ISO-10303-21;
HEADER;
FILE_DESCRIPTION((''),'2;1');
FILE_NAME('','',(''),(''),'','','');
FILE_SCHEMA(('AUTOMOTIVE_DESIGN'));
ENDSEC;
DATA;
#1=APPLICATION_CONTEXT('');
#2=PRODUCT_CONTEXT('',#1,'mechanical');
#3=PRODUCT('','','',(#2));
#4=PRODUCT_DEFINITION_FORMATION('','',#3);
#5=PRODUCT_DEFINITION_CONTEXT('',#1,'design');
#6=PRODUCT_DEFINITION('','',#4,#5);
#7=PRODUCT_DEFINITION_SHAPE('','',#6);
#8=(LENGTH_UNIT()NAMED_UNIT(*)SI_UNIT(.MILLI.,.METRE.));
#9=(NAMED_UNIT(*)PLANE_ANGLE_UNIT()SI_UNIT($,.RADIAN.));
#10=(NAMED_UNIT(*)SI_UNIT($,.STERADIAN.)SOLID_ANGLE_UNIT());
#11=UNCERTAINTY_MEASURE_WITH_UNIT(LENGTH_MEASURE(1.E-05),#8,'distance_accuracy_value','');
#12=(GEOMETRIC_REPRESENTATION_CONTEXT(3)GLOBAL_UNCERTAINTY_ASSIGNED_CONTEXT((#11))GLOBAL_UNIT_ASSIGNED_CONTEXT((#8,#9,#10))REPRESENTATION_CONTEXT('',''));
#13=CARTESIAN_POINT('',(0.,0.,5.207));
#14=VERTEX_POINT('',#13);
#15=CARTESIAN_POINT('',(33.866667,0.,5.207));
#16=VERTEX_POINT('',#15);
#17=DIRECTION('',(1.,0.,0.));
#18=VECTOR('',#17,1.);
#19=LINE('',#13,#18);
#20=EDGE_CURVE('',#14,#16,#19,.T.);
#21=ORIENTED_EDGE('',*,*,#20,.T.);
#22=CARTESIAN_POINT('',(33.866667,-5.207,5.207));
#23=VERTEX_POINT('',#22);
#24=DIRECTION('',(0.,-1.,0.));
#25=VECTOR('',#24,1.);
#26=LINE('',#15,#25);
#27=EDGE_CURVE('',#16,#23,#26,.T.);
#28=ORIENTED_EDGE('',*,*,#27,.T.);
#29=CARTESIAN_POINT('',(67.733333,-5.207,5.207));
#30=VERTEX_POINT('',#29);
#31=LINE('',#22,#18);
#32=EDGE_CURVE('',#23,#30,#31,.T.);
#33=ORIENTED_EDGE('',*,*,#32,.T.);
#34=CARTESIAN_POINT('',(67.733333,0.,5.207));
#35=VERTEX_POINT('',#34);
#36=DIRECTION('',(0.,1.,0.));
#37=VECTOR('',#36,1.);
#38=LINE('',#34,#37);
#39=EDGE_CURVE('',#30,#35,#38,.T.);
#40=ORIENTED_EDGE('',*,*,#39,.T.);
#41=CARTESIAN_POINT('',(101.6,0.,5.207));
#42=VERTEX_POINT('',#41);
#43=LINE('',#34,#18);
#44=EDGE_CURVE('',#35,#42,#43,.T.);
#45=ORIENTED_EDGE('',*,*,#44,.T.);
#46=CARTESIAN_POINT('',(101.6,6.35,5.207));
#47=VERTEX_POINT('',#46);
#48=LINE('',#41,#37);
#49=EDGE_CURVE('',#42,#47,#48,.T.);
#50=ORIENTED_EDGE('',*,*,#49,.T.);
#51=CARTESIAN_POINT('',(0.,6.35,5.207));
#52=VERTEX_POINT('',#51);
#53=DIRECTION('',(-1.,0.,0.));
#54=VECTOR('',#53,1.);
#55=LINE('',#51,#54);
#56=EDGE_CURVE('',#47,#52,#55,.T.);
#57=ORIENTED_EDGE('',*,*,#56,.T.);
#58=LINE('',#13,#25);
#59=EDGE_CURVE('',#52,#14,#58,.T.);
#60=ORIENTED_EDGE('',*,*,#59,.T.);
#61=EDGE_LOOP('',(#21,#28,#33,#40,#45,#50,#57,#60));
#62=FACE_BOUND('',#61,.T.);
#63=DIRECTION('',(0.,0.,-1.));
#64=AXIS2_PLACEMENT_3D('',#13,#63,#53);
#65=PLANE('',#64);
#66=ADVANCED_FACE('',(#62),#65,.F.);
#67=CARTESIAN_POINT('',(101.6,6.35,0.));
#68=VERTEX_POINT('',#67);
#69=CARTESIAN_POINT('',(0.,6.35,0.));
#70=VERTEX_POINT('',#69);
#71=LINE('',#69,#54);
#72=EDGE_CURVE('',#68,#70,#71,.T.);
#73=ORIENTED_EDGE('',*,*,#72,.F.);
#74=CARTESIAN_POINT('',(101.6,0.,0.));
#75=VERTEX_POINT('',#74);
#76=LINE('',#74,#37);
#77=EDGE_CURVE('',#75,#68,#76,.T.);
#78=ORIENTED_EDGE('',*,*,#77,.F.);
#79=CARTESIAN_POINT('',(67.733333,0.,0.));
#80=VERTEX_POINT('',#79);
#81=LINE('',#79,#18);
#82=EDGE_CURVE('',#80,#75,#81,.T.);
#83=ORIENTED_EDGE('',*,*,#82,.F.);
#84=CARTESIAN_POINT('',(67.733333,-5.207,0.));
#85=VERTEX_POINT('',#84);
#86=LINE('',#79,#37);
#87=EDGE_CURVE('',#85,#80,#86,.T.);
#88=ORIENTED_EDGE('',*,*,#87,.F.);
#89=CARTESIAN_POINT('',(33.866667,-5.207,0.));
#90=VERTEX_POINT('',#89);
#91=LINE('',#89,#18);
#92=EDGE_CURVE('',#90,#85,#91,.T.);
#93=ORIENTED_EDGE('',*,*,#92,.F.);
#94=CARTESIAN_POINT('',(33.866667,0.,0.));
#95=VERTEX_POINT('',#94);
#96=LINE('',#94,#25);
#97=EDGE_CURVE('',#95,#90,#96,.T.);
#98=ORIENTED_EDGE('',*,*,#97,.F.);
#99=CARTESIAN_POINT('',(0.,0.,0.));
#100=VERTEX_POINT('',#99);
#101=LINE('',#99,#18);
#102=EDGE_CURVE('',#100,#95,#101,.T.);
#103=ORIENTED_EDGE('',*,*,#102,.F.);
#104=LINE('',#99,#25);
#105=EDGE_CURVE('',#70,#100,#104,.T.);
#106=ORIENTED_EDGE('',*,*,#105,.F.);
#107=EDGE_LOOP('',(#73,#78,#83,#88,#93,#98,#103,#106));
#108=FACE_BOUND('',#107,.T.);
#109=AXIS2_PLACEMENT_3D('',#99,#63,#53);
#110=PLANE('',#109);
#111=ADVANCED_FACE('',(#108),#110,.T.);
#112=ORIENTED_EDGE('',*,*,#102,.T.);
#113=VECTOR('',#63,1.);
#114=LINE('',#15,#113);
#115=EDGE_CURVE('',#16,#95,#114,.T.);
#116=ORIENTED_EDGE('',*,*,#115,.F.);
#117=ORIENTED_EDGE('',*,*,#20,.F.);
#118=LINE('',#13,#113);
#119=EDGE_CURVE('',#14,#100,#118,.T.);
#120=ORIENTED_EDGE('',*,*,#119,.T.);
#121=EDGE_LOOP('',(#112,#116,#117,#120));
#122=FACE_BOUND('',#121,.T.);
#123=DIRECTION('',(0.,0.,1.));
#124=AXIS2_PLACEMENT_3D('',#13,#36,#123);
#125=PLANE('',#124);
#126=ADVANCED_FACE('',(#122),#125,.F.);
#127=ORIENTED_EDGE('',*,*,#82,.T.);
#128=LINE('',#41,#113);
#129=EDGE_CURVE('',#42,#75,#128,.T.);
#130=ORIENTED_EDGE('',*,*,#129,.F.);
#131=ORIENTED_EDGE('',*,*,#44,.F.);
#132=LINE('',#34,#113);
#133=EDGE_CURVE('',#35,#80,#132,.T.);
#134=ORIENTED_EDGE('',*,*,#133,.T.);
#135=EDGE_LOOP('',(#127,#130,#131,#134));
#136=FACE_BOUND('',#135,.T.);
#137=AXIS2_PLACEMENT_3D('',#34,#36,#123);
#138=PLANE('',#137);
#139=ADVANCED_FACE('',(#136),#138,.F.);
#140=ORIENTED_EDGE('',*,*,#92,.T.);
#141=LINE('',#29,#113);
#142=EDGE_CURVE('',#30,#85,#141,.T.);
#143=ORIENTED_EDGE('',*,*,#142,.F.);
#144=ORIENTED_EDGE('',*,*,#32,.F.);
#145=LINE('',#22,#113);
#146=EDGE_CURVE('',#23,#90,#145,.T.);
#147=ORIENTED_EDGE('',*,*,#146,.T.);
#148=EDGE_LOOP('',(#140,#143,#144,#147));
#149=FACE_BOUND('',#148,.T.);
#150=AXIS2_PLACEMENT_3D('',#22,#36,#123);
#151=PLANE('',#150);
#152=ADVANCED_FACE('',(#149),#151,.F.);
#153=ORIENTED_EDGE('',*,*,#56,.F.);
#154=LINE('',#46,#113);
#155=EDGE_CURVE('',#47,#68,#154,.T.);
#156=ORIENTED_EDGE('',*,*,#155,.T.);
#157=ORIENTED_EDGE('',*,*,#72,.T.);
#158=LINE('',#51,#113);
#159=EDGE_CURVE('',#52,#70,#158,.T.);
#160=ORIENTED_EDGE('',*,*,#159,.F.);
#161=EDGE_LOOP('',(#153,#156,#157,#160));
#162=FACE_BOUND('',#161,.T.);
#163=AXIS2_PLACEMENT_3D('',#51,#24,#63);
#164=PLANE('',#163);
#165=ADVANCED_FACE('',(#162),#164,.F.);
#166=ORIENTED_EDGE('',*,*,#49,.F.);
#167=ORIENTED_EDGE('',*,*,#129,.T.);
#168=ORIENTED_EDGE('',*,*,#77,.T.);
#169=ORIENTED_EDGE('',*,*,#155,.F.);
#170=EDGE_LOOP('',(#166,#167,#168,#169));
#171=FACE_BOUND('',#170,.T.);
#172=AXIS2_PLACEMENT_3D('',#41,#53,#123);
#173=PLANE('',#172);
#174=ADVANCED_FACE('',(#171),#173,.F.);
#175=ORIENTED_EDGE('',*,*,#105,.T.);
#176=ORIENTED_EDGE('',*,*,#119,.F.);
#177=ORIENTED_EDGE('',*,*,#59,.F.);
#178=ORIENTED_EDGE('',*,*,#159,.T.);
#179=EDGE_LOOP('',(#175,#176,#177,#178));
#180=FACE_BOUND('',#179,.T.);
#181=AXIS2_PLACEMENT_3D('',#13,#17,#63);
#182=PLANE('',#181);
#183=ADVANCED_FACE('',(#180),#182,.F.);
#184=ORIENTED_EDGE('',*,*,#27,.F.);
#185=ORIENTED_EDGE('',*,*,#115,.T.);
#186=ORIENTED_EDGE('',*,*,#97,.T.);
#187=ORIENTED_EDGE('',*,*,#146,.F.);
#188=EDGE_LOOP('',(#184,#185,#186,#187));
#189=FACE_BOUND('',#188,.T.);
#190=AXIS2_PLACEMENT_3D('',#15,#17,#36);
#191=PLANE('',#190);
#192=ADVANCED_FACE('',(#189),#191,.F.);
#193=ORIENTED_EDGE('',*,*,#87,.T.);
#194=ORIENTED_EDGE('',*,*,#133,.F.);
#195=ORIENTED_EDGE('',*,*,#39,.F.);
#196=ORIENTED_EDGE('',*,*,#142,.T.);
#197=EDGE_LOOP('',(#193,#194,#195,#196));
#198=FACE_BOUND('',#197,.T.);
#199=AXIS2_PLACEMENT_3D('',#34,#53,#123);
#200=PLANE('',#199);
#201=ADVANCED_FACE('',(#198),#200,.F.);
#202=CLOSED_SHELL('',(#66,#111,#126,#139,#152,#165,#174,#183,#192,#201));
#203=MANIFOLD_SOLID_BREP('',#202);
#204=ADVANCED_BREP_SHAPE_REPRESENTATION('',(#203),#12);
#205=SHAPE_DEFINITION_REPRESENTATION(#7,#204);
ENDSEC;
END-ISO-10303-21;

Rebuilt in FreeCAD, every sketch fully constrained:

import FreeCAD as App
import Part
import Sketcher
Q = App.Units.Quantity


def add_polygon(sketch, points):
    """Adds a closed chain of lines whose ends are joined by coincident constraints."""
    first, n = sketch.GeometryCount, len(points)
    for a, b in zip(points, points[1:] + points[:1]):
        sketch.addGeometry(Part.LineSegment(App.Vector(*a, 0), App.Vector(*b, 0)), False)
    for i in range(n):
        sketch.addConstraint(Sketcher.Constraint("Coincident", first + i, 2, first + (i + 1) % n, 1))

doc = App.newDocument("Part")
body = doc.addObject("PartDesign::Body", "Body")

sketch1 = body.newObject("Sketcher::SketchObject", "Sketch")
sketch1.AttachmentSupport = (doc.getObject("XY_Plane"), [""])
sketch1.MapMode = "FlatFace"
add_polygon(sketch1, [(68, 0), (102, 0), (102, 6), (0, 6), (0, 0), (34, 0), (34, -5), (68, -5)])
sketch1.addConstraint([
    Sketcher.Constraint("Horizontal", 0),
    Sketcher.Constraint("Vertical", 1),
    Sketcher.Constraint("Horizontal", 2),
    Sketcher.Constraint("Vertical", 3),
    Sketcher.Constraint("Horizontal", 4),
    Sketcher.Constraint("Vertical", 5),
    Sketcher.Constraint("Horizontal", 6),
    Sketcher.Constraint("Vertical", 7),
    Sketcher.Constraint("Coincident", 3, 2, -1, 1),
    Sketcher.Constraint("PointOnObject", 0, 2, -1),
    Sketcher.Constraint("Equal", 0, 4),
    Sketcher.Constraint("Equal", 4, 6),
    Sketcher.Constraint("DistanceX", 2, 2, 2, 1, Q("4 in")),
    Sketcher.Constraint("DistanceY", 1, 1, 1, 2, Q("0.25 in")),
    Sketcher.Constraint("DistanceY", 5, 2, 5, 1, Q("0.205 in")),
])
pad1 = body.newObject("PartDesign::Pad", "Pad")
pad1.Profile = sketch1
pad1.Length = Q("0.205 in")

doc.recompute()
